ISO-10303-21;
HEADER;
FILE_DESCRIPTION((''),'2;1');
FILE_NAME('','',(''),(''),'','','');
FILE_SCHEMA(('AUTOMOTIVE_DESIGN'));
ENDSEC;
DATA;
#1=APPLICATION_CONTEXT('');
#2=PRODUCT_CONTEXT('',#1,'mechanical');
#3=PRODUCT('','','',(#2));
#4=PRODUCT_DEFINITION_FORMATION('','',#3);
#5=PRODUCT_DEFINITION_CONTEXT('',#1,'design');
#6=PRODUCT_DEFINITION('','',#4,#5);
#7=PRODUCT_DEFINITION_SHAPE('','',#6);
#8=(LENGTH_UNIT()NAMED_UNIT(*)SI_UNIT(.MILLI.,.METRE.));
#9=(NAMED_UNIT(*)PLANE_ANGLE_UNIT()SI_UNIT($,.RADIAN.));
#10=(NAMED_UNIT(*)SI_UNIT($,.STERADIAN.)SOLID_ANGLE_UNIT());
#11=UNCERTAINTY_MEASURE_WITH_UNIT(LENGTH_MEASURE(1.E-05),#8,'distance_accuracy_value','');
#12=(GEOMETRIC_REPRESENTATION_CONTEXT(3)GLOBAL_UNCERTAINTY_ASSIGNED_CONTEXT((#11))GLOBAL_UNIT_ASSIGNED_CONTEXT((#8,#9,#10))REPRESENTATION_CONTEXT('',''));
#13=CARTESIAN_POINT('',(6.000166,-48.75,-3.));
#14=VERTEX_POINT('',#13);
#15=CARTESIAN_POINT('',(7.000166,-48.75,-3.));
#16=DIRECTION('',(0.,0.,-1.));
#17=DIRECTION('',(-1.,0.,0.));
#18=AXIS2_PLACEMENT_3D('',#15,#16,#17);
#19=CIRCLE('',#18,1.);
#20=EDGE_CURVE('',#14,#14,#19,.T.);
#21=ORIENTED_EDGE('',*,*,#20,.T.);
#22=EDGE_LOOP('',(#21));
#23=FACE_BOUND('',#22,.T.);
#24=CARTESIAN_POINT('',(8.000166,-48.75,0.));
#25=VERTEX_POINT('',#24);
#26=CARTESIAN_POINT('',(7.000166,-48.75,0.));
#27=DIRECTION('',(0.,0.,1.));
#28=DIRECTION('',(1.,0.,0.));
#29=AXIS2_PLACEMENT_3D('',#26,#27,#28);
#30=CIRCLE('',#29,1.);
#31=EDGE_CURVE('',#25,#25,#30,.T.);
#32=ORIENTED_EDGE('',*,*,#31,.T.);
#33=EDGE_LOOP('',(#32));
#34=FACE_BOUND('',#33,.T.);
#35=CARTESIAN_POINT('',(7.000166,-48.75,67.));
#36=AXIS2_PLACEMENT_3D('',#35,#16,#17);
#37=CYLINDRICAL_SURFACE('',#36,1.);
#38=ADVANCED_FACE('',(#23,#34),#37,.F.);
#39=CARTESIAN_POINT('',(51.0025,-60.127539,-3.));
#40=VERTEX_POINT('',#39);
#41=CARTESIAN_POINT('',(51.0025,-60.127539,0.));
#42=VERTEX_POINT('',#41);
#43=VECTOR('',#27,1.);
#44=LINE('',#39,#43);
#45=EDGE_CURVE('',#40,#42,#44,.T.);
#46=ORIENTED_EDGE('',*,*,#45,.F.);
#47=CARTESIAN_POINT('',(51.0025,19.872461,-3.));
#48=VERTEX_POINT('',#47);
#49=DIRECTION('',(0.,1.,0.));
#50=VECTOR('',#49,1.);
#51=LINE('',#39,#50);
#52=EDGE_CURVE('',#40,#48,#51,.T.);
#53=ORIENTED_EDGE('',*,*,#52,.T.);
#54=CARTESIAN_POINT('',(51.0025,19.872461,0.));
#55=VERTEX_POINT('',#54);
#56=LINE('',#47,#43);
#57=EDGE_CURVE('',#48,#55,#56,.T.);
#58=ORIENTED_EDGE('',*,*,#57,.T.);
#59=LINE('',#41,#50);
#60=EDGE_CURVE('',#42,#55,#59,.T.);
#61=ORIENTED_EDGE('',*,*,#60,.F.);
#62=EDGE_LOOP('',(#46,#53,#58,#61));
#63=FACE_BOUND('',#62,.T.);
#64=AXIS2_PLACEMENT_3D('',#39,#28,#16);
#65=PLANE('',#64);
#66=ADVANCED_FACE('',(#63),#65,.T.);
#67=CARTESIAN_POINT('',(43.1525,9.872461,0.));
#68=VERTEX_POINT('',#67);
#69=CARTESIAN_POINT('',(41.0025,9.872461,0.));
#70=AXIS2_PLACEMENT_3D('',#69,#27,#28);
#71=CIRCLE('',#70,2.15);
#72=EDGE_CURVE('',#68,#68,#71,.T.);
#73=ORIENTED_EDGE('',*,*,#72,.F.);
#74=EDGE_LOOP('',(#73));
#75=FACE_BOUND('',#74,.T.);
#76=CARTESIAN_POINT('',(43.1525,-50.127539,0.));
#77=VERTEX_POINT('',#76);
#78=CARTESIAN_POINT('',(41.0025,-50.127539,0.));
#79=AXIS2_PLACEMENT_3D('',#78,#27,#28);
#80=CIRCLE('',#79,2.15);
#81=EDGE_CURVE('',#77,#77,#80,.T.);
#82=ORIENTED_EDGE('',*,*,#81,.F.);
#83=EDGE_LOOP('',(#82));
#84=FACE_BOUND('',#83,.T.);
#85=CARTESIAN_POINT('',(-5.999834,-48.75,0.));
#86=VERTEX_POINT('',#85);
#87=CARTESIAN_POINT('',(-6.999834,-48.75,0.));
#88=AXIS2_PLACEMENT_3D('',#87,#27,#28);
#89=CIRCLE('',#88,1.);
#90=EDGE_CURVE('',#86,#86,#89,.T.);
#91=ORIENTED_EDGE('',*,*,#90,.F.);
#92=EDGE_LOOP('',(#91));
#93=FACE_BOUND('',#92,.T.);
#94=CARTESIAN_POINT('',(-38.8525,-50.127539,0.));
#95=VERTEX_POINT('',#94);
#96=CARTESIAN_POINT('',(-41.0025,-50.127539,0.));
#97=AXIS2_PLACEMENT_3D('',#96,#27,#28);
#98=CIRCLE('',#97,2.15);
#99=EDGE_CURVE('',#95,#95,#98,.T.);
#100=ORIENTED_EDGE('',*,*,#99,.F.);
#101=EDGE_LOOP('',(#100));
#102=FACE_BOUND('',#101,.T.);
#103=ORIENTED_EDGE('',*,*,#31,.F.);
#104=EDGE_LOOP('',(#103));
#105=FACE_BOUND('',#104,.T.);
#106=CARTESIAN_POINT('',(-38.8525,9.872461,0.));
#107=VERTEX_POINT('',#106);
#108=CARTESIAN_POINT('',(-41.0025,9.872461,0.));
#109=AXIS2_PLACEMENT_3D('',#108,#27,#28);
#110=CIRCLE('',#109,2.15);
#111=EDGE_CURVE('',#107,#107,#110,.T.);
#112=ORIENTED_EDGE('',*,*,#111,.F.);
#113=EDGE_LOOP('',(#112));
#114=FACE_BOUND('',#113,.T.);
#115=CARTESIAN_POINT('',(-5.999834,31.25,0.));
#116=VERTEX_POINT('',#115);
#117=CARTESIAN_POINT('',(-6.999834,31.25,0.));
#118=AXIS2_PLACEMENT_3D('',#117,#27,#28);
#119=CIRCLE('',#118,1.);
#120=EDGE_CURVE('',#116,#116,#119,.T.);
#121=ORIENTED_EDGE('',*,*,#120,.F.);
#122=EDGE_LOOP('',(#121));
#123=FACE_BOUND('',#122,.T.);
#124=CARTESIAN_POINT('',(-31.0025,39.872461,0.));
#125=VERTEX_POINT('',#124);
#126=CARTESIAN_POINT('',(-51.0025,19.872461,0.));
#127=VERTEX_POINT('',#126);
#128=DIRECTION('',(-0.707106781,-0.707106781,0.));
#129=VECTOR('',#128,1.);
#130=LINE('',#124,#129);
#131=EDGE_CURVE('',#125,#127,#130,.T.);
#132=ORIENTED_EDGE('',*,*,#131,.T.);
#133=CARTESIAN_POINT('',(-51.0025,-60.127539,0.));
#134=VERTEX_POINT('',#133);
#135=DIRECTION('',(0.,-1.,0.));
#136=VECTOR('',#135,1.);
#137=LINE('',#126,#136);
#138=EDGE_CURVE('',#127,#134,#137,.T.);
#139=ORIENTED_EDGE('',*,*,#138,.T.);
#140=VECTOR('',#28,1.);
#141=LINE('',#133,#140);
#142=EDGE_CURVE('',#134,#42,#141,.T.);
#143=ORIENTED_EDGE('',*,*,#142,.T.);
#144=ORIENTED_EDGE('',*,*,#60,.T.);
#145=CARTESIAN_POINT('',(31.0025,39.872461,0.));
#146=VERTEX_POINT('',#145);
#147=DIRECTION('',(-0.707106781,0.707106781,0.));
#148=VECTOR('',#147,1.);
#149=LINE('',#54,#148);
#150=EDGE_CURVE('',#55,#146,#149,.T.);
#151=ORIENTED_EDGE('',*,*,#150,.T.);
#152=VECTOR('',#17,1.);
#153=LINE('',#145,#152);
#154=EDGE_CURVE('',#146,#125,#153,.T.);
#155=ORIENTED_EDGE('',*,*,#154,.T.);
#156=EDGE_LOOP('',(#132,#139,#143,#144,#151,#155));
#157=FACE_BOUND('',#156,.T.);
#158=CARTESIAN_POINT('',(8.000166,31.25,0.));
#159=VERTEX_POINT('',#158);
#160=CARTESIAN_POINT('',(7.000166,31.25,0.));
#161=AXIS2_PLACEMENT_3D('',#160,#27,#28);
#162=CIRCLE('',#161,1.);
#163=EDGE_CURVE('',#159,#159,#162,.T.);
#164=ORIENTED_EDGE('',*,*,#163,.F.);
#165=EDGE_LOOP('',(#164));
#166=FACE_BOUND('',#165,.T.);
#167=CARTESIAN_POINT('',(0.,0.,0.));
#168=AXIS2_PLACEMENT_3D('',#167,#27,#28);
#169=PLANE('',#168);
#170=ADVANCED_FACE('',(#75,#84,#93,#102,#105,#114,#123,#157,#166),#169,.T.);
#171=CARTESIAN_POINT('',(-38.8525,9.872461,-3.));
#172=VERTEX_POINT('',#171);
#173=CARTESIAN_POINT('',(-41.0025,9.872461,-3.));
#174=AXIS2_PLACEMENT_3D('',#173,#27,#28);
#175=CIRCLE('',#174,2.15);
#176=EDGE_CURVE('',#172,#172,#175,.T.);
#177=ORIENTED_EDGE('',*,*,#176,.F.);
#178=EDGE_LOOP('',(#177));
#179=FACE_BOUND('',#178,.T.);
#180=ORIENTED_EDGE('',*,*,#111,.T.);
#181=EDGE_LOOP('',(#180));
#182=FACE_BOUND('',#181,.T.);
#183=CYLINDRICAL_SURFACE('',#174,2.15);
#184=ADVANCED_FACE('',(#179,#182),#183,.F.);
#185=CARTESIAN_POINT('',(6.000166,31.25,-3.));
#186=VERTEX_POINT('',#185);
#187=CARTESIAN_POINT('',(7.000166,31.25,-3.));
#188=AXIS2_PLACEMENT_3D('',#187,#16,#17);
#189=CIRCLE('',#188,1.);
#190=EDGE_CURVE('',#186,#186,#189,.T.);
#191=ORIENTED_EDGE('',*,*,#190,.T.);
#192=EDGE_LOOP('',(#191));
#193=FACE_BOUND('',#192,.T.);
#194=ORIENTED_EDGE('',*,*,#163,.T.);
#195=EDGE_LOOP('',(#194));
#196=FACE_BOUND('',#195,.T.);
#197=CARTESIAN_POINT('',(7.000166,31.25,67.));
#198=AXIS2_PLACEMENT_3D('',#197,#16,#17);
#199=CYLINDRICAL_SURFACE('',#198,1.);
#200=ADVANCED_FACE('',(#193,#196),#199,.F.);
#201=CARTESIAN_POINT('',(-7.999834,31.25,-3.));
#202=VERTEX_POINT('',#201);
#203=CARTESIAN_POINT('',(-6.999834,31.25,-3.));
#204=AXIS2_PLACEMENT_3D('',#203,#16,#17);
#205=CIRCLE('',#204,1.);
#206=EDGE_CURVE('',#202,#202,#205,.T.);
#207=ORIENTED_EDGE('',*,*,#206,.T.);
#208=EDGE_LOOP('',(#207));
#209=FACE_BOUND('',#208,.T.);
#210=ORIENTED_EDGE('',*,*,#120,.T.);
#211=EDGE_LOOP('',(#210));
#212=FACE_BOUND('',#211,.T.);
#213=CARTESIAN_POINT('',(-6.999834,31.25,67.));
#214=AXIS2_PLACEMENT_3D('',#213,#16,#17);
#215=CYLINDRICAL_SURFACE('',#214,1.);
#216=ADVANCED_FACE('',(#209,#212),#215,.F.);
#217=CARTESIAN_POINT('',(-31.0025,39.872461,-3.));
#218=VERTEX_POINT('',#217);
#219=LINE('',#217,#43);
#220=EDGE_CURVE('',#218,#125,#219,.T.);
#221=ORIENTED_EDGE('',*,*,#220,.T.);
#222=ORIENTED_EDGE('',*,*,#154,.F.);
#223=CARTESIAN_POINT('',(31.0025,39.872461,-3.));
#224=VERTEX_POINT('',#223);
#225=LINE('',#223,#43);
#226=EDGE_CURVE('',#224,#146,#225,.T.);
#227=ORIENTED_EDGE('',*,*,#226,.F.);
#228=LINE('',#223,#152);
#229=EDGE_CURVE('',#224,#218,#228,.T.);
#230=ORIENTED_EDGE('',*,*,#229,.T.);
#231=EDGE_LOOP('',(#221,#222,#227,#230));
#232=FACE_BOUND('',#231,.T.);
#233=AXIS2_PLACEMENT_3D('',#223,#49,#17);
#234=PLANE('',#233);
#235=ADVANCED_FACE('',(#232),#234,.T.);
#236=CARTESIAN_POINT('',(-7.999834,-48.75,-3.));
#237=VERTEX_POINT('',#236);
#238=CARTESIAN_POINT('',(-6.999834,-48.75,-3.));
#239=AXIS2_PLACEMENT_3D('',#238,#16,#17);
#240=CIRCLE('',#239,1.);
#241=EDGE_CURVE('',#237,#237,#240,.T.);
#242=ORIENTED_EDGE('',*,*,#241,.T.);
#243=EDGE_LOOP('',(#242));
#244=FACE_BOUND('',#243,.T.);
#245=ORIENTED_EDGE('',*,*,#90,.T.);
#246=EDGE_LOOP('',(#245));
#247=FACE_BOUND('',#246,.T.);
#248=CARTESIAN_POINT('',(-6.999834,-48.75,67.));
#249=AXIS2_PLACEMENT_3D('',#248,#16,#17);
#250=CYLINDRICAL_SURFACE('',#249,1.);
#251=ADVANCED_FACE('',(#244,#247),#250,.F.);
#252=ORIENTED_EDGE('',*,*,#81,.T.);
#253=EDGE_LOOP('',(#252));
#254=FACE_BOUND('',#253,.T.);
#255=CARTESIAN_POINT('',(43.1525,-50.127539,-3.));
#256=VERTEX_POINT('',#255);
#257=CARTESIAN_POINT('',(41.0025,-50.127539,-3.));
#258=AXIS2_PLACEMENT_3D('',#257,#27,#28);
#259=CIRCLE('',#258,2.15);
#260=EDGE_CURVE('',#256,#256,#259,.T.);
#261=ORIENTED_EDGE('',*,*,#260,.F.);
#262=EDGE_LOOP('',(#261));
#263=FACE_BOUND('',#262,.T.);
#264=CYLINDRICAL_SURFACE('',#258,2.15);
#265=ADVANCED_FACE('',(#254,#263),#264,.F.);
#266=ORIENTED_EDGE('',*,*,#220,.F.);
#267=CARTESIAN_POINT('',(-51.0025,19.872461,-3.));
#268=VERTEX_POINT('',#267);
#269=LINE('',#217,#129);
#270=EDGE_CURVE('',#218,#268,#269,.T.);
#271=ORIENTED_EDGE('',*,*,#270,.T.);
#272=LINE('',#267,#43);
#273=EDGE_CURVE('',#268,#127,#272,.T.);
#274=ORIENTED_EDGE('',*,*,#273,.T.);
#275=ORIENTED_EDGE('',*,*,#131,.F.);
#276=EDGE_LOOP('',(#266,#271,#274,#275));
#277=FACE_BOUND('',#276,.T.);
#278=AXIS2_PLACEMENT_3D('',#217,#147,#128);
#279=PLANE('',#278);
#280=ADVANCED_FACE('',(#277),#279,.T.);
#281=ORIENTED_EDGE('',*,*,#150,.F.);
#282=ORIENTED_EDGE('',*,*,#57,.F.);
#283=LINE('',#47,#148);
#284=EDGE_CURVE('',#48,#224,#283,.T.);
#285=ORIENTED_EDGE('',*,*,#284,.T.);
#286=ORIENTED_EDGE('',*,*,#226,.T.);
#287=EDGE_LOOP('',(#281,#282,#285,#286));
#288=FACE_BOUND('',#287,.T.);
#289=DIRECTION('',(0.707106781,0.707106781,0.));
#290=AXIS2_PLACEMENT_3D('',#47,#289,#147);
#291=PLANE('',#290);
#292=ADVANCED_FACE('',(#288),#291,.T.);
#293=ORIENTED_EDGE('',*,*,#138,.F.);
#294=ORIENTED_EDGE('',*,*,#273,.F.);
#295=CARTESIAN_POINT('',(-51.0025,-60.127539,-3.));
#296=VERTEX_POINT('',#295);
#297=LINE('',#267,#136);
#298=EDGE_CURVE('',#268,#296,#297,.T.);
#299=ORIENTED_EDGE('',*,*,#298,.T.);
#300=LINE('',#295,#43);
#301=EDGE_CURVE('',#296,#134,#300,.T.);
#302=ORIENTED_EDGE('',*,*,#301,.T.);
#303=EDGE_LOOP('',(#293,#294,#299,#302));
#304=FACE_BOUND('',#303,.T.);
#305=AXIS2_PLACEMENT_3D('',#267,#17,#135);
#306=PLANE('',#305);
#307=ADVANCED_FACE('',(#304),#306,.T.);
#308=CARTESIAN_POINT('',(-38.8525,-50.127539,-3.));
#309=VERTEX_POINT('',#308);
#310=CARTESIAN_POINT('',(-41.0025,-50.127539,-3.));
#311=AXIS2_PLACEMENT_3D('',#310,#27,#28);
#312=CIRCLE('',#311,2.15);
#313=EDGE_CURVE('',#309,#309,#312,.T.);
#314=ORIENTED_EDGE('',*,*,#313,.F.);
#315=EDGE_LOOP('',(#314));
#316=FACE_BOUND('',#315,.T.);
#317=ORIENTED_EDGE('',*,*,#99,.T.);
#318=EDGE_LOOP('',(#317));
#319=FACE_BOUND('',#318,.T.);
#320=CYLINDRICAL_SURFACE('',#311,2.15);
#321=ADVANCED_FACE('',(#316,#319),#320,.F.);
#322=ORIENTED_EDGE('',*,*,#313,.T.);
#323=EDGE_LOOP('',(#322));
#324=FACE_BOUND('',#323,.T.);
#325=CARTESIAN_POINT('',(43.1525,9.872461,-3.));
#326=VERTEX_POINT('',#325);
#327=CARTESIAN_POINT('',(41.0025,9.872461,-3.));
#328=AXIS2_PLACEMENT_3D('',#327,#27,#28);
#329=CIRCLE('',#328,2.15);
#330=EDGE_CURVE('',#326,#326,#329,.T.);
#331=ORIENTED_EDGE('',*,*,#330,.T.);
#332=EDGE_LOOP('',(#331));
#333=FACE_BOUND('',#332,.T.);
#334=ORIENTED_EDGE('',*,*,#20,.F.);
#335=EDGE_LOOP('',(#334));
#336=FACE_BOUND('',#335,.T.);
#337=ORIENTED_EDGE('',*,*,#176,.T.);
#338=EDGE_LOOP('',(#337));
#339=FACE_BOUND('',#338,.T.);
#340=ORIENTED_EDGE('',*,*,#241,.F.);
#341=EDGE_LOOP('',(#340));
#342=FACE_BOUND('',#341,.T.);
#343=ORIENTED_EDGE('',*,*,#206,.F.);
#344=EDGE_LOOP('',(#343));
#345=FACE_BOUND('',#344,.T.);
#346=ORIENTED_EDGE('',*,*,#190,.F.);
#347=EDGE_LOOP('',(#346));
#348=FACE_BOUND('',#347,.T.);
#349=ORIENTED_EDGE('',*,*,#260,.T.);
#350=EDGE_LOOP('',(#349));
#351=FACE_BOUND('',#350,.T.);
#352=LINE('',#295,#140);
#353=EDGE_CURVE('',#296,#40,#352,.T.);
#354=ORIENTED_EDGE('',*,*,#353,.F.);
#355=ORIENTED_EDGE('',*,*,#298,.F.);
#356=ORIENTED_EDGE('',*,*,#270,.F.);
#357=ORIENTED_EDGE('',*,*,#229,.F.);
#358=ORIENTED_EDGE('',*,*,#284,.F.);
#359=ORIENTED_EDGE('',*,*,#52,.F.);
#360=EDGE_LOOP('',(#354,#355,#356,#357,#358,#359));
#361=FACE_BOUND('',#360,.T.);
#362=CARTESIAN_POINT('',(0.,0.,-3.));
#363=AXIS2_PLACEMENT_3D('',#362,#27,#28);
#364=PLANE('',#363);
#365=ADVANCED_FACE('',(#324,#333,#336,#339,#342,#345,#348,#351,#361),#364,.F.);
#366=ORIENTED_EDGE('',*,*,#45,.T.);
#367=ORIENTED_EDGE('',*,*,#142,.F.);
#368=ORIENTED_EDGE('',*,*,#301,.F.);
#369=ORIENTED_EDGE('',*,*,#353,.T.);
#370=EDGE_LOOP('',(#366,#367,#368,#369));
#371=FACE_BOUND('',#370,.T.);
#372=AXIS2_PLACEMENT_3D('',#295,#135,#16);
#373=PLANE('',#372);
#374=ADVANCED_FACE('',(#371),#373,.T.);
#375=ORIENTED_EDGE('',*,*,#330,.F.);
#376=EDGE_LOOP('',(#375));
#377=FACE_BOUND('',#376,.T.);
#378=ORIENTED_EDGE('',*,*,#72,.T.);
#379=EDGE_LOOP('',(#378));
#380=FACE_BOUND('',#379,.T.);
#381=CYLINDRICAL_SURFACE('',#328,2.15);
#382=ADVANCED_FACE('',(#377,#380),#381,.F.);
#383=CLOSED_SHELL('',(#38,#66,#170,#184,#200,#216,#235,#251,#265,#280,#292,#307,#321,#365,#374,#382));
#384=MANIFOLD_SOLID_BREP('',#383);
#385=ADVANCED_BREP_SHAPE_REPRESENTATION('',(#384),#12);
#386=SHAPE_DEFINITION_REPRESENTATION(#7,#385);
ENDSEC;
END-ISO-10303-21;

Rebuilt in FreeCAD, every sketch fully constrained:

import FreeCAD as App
import Part
import Sketcher
Q = App.Units.Quantity


def add_polygon(sketch, points):
    """Adds a closed chain of lines whose ends are joined by coincident constraints."""
    first, n = sketch.GeometryCount, len(points)
    for a, b in zip(points, points[1:] + points[:1]):
        sketch.addGeometry(Part.LineSegment(App.Vector(*a, 0), App.Vector(*b, 0)), False)
    for i in range(n):
        sketch.addConstraint(Sketcher.Constraint("Coincident", first + i, 2, first + (i + 1) % n, 1))

doc = App.newDocument("Part")
params = doc.addObject("Spreadsheet::Sheet", "Params")
for row, (alias, value) in enumerate([
    ("sketch1_height", "80 mm"),
    ("pad1_length", "3 mm"),
    ("sketch2_diameter", "4.3 mm"),
    ("pocket1_length", "3 mm"),
    ("sketch3_diameter", "2 mm"),
    ("pocket2_length", "70 mm"),
], start=1):
    params.set(f"A{row}", alias)
    params.set(f"B{row}", "=" + value)
    params.setAlias(f"B{row}", alias)

body = doc.addObject("PartDesign::Body", "Body")

# Sketch on XY plane
sketch1 = doc.addObject("Sketcher::SketchObject", "Sketch")
body.addObject(sketch1)
sketch1.AttachmentSupport = (doc.XY_Plane, [""])
sketch1.MapMode = "FlatFace"
add_polygon(sketch1, [(-51.0025, -60.127539), (51.0025, -60.127539), (51.0025, 19.872461), (31.0025, 39.872461), (-31.0025, 39.872461), (-51.0025, 19.872461)])  # lines 0-5
sketch1.addConstraint(Sketcher.Constraint("Horizontal", 0))
sketch1.addConstraint(Sketcher.Constraint("Vertical", 1))
sketch1.addConstraint(Sketcher.Constraint("Horizontal", 3))
sketch1.addConstraint(Sketcher.Constraint("Vertical", 5))
sketch1.addConstraint(Sketcher.Constraint("Symmetric", 1, 2, 4, 2, -2))
sketch1.addConstraint(Sketcher.Constraint("Perpendicular", 2, 4))
sketch1.addConstraint(Sketcher.Constraint("Equal", 2, 4))
sketch1.addConstraint(Sketcher.Constraint("DistanceY", 1, 1, 1, 2, Q("80 mm")))
sketch1.addConstraint(Sketcher.Constraint("DistanceX", 2, 2, 1, 2, Q("20 mm")))
sketch1.addConstraint(Sketcher.Constraint("DistanceX", 0, 1, 0, 2, Q("102.005 mm")))
sketch1.addConstraint(Sketcher.Constraint("DistanceY", 0, 2, -1, 1, Q("60.127539 mm")))
sketch1.setExpression("Constraints[13]", "Params.sketch1_height")
pad1 = doc.addObject("PartDesign::Pad", "Pad")
body.addObject(pad1)
pad1.Profile = sketch1
pad1.setExpression("Length", "Params.pad1_length")
pad1.Reversed = True

# Sketch on XY plane
sketch2 = doc.addObject("Sketcher::SketchObject", "Sketch001")
body.addObject(sketch2)
sketch2.AttachmentSupport = (doc.XY_Plane, [""])
sketch2.MapMode = "FlatFace"
sketch2.addGeometry(Part.Circle(App.Vector(-41.0025, 9.872461, 0), App.Vector(0, 0, 1), 2.15), False)
sketch2.addGeometry(Part.Circle(App.Vector(-41.0025, -50.127539, 0), App.Vector(0, 0, 1), 2.15), False)
sketch2.addGeometry(Part.Circle(App.Vector(41.0025, 9.872461, 0), App.Vector(0, 0, 1), 2.15), False)
sketch2.addGeometry(Part.Circle(App.Vector(41.0025, -50.127539, 0), App.Vector(0, 0, 1), 2.15), False)
sketch2.addConstraint(Sketcher.Constraint("Equal", 0, 1))
sketch2.addConstraint(Sketcher.Constraint("Equal", 1, 2))
sketch2.addConstraint(Sketcher.Constraint("Equal", 2, 3))
sketch2.addConstraint(Sketcher.Constraint("Symmetric", 0, 3, 2, 3, -2))
sketch2.addConstraint(Sketcher.Constraint("Symmetric", 1, 3, 3, 3, -2))
sketch2.addConstraint(Sketcher.Constraint("Vertical", 0, 3, 1, 3))
sketch2.addConstraint(Sketcher.Constraint("Diameter", 0, Q("4.3 mm")))
sketch2.addConstraint(Sketcher.Constraint("DistanceY", 1, 3, 0, 3, Q("60 mm")))
sketch2.addConstraint(Sketcher.Constraint("DistanceX", 0, 3, 2, 3, Q("82.005 mm")))
sketch2.addConstraint(Sketcher.Constraint("DistanceY", -1, 1, 0, 3, Q("9.872461 mm")))
sketch2.setExpression("Constraints[6]", "Params.sketch2_diameter")
pocket1 = doc.addObject("PartDesign::Pocket", "Pocket")
body.addObject(pocket1)
pocket1.Profile = sketch2
pocket1.setExpression("Length", "Params.pocket1_length")

# Sketch on XY plane
sketch3 = doc.addObject("Sketcher::SketchObject", "Sketch002")
body.addObject(sketch3)
sketch3.AttachmentSupport = (doc.XY_Plane, [""])
sketch3.MapMode = "FlatFace"
sketch3.AttachmentOffset = App.Placement(App.Vector(0, 0, -3), App.Rotation())
sketch3.addGeometry(Part.Circle(App.Vector(7.000166, 31.25, 0), App.Vector(0, 0, 1), 1), False)
sketch3.addGeometry(Part.Circle(App.Vector(-6.999834, 31.25, 0), App.Vector(0, 0, 1), 1), False)
sketch3.addGeometry(Part.Circle(App.Vector(7.000166, -48.75, 0), App.Vector(0, 0, 1), 1), False)
sketch3.addGeometry(Part.Circle(App.Vector(-6.999834, -48.75, 0), App.Vector(0, 0, 1), 1), False)
sketch3.addConstraint(Sketcher.Constraint("Equal", 0, 1))
sketch3.addConstraint(Sketcher.Constraint("Equal", 1, 2))
sketch3.addConstraint(Sketcher.Constraint("Equal", 2, 3))
sketch3.addConstraint(Sketcher.Constraint("Horizontal", 0, 3, 1, 3))
sketch3.addConstraint(Sketcher.Constraint("Horizontal", 2, 3, 3, 3))
sketch3.addConstraint(Sketcher.Constraint("Vertical", 0, 3, 2, 3))
sketch3.addConstraint(Sketcher.Constraint("Vertical", 1, 3, 3, 3))
sketch3.addConstraint(Sketcher.Constraint("Diameter", 0, Q("2 mm")))
sketch3.addConstraint(Sketcher.Constraint("DistanceX", 1, 3, 0, 3, Q("14 mm")))
sketch3.addConstraint(Sketcher.Constraint("DistanceY", 2, 3, 0, 3, Q("80 mm")))
sketch3.addConstraint(Sketcher.Constraint("DistanceY", -1, 1, 0, 3, Q("31.25 mm")))
sketch3.addConstraint(Sketcher.Constraint("DistanceX", -1, 1, 0, 3, Q("7.000166 mm")))
sketch3.setExpression("Constraints[7]", "Params.sketch3_diameter")
pocket2 = doc.addObject("PartDesign::Pocket", "Pocket001")
body.addObject(pocket2)
pocket2.Profile = sketch3
pocket2.setExpression("Length", "Params.pocket2_length")
pocket2.Reversed = True

doc.recompute()
